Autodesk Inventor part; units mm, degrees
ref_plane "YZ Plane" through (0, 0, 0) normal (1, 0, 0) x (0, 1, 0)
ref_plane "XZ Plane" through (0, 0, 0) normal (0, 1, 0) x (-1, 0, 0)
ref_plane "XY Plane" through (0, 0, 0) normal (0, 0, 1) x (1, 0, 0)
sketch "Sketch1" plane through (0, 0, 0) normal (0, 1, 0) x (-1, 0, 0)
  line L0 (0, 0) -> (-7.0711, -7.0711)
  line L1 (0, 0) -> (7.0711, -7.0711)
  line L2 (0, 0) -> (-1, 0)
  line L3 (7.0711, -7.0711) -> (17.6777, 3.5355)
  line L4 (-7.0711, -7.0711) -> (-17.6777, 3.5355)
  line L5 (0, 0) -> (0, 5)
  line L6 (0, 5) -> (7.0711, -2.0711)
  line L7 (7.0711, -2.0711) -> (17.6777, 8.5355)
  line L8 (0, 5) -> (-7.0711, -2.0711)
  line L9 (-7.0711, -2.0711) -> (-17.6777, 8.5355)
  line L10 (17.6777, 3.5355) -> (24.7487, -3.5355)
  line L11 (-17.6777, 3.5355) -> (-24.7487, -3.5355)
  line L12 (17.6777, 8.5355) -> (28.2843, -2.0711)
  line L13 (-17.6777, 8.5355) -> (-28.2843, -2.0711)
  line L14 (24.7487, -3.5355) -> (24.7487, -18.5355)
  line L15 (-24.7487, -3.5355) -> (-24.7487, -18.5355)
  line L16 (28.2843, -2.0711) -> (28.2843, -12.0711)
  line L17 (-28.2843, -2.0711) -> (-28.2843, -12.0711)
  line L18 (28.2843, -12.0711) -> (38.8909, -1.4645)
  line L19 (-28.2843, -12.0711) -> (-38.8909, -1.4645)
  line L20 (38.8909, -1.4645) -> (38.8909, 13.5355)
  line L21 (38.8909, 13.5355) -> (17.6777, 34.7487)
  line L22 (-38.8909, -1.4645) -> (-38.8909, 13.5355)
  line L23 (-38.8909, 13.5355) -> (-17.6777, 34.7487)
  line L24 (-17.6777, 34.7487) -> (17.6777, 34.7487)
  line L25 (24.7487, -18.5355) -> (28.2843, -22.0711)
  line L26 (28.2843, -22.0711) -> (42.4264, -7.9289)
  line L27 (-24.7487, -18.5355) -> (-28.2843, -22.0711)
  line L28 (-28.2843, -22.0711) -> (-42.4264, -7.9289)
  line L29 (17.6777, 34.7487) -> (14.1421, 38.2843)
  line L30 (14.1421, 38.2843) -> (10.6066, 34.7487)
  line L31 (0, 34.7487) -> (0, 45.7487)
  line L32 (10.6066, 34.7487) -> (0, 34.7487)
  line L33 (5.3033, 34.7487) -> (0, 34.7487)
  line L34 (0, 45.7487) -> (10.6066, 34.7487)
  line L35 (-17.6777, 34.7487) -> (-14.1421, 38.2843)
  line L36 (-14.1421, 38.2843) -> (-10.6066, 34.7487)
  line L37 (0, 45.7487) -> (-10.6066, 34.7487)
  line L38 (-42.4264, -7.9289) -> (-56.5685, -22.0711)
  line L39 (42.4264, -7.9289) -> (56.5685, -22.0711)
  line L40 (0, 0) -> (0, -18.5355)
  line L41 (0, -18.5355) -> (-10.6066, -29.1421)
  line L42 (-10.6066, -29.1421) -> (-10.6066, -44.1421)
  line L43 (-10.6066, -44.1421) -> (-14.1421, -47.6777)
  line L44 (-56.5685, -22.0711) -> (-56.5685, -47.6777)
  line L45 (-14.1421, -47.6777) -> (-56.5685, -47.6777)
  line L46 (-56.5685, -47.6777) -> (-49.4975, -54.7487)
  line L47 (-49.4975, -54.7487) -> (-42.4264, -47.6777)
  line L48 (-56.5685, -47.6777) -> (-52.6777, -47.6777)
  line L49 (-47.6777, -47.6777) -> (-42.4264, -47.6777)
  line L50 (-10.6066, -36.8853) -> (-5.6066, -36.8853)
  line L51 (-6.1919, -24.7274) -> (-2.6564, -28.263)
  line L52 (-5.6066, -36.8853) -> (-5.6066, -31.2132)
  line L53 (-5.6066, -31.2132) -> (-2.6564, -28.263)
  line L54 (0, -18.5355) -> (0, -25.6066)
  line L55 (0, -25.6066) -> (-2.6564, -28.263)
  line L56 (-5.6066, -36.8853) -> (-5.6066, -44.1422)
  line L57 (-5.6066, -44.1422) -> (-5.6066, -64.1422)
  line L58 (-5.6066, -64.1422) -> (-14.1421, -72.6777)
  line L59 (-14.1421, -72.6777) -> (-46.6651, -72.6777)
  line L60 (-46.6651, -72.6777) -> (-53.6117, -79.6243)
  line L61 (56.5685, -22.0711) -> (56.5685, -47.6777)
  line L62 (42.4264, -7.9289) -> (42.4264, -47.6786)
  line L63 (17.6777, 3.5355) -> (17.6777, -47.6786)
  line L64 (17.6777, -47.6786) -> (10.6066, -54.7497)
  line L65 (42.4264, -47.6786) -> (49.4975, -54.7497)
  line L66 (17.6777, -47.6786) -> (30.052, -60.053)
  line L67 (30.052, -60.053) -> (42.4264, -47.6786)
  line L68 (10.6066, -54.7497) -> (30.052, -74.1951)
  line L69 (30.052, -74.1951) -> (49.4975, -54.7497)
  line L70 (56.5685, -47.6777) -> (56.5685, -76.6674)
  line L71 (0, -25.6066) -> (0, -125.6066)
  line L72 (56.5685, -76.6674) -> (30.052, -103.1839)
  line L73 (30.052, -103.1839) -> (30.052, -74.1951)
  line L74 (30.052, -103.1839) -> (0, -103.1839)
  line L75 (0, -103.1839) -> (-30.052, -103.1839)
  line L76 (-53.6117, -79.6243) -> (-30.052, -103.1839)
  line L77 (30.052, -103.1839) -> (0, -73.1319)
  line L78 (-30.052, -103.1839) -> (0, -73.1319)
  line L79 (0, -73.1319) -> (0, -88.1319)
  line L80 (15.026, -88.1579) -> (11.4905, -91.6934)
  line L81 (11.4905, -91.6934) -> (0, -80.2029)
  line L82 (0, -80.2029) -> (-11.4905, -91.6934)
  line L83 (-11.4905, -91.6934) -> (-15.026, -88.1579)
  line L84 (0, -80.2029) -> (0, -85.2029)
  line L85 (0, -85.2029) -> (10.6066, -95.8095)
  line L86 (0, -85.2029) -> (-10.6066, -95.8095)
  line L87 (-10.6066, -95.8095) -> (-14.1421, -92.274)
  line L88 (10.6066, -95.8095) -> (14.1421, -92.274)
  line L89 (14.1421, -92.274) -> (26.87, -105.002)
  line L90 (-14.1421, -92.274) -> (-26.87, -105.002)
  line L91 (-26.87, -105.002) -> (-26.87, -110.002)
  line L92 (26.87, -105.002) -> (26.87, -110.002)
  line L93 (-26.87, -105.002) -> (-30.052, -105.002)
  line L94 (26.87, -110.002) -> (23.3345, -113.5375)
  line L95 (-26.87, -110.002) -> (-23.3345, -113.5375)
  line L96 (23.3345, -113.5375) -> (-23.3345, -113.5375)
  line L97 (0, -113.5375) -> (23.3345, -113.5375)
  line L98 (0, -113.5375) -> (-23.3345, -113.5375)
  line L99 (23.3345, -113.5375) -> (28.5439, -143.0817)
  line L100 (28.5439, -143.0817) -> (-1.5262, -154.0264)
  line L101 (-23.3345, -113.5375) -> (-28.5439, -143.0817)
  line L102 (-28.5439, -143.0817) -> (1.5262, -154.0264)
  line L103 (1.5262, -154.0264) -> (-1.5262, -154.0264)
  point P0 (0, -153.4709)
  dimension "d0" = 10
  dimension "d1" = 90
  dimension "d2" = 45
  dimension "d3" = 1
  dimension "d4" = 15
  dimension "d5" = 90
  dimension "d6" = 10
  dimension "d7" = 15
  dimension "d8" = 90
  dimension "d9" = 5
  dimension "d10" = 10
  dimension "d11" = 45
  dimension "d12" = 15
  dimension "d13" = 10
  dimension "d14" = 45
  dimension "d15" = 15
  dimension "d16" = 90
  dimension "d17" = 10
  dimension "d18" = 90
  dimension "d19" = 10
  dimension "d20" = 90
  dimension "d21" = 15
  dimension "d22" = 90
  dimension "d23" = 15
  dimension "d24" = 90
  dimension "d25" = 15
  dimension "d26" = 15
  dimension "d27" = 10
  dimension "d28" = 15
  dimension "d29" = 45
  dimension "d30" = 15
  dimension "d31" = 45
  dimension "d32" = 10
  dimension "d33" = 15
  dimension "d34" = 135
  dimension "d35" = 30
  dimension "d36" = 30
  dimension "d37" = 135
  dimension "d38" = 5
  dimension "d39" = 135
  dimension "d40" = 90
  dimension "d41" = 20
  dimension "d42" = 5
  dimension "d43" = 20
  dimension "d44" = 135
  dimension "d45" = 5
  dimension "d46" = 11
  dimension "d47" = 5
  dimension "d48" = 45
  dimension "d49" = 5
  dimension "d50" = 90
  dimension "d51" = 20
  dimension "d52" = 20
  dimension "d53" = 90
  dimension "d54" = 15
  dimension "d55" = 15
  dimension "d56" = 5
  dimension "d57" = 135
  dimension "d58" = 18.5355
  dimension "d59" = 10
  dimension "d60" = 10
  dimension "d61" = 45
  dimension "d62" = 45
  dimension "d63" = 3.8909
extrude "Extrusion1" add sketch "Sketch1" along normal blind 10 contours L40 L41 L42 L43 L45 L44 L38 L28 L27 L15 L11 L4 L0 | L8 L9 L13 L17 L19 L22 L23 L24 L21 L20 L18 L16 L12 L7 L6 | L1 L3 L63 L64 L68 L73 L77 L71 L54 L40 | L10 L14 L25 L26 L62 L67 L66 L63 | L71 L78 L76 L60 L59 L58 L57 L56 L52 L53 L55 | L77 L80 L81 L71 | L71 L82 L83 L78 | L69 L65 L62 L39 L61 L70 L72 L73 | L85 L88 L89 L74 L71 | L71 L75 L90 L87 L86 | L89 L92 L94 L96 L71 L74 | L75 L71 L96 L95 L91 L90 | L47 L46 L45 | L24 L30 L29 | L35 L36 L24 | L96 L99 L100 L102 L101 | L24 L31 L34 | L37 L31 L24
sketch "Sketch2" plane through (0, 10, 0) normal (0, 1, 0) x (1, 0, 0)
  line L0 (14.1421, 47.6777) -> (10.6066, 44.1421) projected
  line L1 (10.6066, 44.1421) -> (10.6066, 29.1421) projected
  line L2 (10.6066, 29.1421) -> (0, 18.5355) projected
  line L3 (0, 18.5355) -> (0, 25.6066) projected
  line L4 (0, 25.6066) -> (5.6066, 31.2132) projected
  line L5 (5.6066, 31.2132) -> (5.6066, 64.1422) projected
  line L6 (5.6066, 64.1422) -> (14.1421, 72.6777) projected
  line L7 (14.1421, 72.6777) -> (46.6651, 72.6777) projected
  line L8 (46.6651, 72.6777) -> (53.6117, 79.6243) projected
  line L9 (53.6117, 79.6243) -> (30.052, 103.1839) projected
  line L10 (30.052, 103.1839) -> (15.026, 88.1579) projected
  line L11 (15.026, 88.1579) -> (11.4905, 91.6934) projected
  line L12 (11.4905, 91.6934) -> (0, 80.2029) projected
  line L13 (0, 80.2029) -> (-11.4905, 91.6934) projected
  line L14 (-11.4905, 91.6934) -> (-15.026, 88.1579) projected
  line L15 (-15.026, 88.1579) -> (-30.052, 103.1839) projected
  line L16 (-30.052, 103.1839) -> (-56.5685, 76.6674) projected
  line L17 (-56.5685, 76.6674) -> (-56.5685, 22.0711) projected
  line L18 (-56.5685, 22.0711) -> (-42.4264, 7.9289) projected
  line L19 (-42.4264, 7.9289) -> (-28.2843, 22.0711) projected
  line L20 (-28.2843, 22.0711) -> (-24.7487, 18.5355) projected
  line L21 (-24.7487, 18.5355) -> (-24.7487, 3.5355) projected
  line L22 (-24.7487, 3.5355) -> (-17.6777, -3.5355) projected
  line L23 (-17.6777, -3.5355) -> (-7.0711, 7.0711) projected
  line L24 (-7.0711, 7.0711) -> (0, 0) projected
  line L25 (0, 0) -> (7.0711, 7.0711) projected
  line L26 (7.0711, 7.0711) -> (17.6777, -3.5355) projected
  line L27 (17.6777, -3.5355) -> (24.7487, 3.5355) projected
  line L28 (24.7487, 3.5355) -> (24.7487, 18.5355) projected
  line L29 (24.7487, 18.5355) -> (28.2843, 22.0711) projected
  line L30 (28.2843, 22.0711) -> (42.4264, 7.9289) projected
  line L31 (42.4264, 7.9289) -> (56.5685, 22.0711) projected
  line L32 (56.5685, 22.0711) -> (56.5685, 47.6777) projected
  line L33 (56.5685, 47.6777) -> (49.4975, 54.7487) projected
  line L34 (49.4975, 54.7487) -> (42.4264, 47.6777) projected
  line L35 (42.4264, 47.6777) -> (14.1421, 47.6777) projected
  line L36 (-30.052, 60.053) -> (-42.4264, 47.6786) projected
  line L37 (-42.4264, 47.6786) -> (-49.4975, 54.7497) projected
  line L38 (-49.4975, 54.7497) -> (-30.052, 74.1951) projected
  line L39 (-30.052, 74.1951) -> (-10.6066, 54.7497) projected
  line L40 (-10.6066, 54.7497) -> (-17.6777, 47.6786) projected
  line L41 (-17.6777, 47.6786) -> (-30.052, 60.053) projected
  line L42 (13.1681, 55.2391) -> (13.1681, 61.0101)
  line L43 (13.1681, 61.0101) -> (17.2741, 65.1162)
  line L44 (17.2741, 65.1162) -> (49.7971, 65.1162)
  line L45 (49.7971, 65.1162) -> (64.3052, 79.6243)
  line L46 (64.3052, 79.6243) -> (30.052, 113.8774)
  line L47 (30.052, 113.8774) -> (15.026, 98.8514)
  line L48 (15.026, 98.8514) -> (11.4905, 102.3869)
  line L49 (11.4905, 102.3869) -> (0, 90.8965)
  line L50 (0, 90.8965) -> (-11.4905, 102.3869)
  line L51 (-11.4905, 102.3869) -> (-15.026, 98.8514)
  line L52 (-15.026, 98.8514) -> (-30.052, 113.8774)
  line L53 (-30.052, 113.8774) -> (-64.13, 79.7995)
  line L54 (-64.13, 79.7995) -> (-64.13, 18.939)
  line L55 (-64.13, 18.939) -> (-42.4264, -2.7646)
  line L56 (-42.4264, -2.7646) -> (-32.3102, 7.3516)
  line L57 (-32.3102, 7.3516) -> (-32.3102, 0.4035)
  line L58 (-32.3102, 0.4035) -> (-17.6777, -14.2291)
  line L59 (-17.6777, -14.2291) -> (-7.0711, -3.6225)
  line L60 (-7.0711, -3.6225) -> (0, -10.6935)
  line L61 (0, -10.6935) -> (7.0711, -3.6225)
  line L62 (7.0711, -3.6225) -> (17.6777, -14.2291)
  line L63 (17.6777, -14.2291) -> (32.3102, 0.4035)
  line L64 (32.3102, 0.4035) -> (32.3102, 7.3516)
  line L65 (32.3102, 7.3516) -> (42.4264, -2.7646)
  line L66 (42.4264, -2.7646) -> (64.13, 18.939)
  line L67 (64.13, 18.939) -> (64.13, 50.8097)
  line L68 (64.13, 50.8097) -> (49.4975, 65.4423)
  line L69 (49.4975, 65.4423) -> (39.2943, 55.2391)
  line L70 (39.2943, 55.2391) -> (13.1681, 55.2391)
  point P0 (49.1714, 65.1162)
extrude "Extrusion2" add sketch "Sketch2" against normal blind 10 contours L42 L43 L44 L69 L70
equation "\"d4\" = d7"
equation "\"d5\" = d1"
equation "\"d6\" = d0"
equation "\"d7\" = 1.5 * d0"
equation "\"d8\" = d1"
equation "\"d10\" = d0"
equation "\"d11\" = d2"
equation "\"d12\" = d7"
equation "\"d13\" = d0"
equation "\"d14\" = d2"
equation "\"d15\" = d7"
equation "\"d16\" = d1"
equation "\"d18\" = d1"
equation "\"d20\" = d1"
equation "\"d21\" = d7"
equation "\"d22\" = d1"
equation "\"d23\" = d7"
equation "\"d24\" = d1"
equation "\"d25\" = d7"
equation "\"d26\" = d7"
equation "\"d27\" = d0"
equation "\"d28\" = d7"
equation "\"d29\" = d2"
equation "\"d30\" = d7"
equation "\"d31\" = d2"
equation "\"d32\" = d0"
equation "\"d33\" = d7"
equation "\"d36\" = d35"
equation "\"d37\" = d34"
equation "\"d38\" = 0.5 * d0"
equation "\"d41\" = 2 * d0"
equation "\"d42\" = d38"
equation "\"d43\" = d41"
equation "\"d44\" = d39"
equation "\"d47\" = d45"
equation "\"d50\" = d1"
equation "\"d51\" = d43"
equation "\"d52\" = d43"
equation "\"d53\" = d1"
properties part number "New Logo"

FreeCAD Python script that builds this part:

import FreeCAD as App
import Part
import Sketcher
Q = App.Units.Quantity


def add_polygon(sketch, points):
    """Adds a closed chain of lines whose ends are joined by coincident constraints."""
    first, n = sketch.GeometryCount, len(points)
    for a, b in zip(points, points[1:] + points[:1]):
        sketch.addGeometry(Part.LineSegment(App.Vector(*a, 0), App.Vector(*b, 0)), False)
    for i in range(n):
        sketch.addConstraint(Sketcher.Constraint("Coincident", first + i, 2, first + (i + 1) % n, 1))

doc = App.newDocument("Part")
body = doc.addObject("PartDesign::Body", "Body")
body.AllowCompound = True

# Sketch on XZ plane
sketch1 = body.newObject("Sketcher::SketchObject", "Sketch")
sketch1.AttachmentSupport = (doc.getObject("XZ_Plane"), [""])
sketch1.MapMode = "FlatFace"
add_polygon(sketch1, [(0, -18.5), (0, -25.6), (5.6, -31.2), (5.6, -64.1), (14.1, -72.7), (46.7, -72.7), (53.6, -79.6), (30.1, -103.2), (15, -88.2), (11.5, -91.7), (0, -80.2), (-11.5, -91.7), (-15, -88.2), (-30.1, -103.2), (-56.6, -76.7), (-56.6, -22.1), (-42.4, -7.9), (-28.3, -22.1), (-24.7, -18.5), (-24.7, -3.5), (-17.7, 3.5), (-7.1, -7.1), (0, 0), (7.1, -7.1), (17.7, 3.5), (24.7, -3.5), (24.7, -18.5), (28.3, -22.1), (42.4, -7.9), (56.6, -22.1), (56.6, -47.7), (49.5, -54.7), (42.4, -47.7), (14.1, -47.7), (10.6, -44.1), (10.6, -29.1)])  # lines 0-35
add_polygon(sketch1, [(-10.6, -54.7), (-17.7, -47.7), (-30.1, -60.1), (-42.4, -47.7), (-49.5, -54.7), (-30.1, -74.2)])  # lines 36-41
add_polygon(sketch1, [(7.1, -2.1), (0, 5), (-7.1, -2.1), (-17.7, 8.5), (-28.3, -2.1), (-28.3, -12.1), (-38.9, -1.5), (-38.9, 13.5), (-14.1, 38.3), (-10.6, 34.7), (0, 45.7), (10.6, 34.7), (14.1, 38.3), (38.9, 13.5), (38.9, -1.5), (28.3, -12.1), (28.3, -2.1), (17.7, 8.5)])  # lines 42-59
add_polygon(sketch1, [(-10.6, -95.8), (0, -85.2), (10.6, -95.8), (14.1, -92.3), (26.9, -105), (26.9, -110), (23.3, -113.5), (28.5, -143.1), (0, -153.5), (-28.5, -143.1), (-23.3, -113.5), (-26.9, -110), (-26.9, -105), (-14.1, -92.3)])  # lines 60-73
sketch1.addConstraint(Sketcher.Constraint("Vertical", 0))
sketch1.addConstraint(Sketcher.Constraint("Vertical", 2))
sketch1.addConstraint(Sketcher.Constraint("Horizontal", 4))
sketch1.addConstraint(Sketcher.Constraint("Vertical", 14))
sketch1.addConstraint(Sketcher.Constraint("Vertical", 18))
sketch1.addConstraint(Sketcher.Constraint("Vertical", 25))
sketch1.addConstraint(Sketcher.Constraint("Vertical", 29))
sketch1.addConstraint(Sketcher.Constraint("Horizontal", 32))
sketch1.addConstraint(Sketcher.Constraint("Vertical", 34))
sketch1.addConstraint(Sketcher.Constraint("Vertical", 46))
sketch1.addConstraint(Sketcher.Constraint("Vertical", 48))
sketch1.addConstraint(Sketcher.Constraint("Vertical", 55))
sketch1.addConstraint(Sketcher.Constraint("Vertical", 57))
sketch1.addConstraint(Sketcher.Constraint("Vertical", 64))
sketch1.addConstraint(Sketcher.Constraint("Vertical", 71))
sketch1.addConstraint(Sketcher.Constraint("Coincident", 21, 2, -1, 1))
sketch1.addConstraint(Sketcher.Constraint("Symmetric", 8, 2, 10, 2, -2))
sketch1.addConstraint(Sketcher.Constraint("Symmetric", 7, 2, 11, 2, -2))
sketch1.addConstraint(Sketcher.Constraint("Symmetric", 6, 2, 12, 2, -2))
sketch1.addConstraint(Sketcher.Constraint("Symmetric", 20, 2, 22, 2, -2))
sketch1.addConstraint(Sketcher.Constraint("Symmetric", 19, 2, 23, 2, -2))
sketch1.addConstraint(Sketcher.Constraint("Symmetric", 18, 2, 24, 2, -2))
sketch1.addConstraint(Sketcher.Constraint("Symmetric", 16, 2, 26, 2, -2))
sketch1.addConstraint(Sketcher.Constraint("Symmetric", 15, 2, 27, 2, -2))
sketch1.addConstraint(Sketcher.Constraint("Symmetric", 14, 2, 28, 2, -2))
sketch1.addConstraint(Sketcher.Constraint("Symmetric", 50, 2, 52, 2, -2))
sketch1.addConstraint(Sketcher.Constraint("Symmetric", 49, 2, 53, 2, -2))
sketch1.addConstraint(Sketcher.Constraint("Symmetric", 48, 2, 54, 2, -2))
sketch1.addConstraint(Sketcher.Constraint("Symmetric", 46, 2, 56, 2, -2))
sketch1.addConstraint(Sketcher.Constraint("Symmetric", 44, 2, 58, 2, -2))
sketch1.addConstraint(Sketcher.Constraint("Symmetric", 43, 2, 59, 2, -2))
sketch1.addConstraint(Sketcher.Constraint("Symmetric", 66, 2, 68, 2, -2))
sketch1.addConstraint(Sketcher.Constraint("Symmetric", 65, 2, 69, 2, -2))
sketch1.addConstraint(Sketcher.Constraint("Symmetric", 64, 2, 70, 2, -2))
sketch1.addConstraint(Sketcher.Constraint("Symmetric", 62, 2, 72, 2, -2))
sketch1.addConstraint(Sketcher.Constraint("Symmetric", 61, 2, 73, 2, -2))
sketch1.addConstraint(Sketcher.Constraint("PointOnObject", 0, 2, -2))
sketch1.addConstraint(Sketcher.Constraint("PointOnObject", 9, 2, -2))
sketch1.addConstraint(Sketcher.Constraint("PointOnObject", 42, 2, -2))
sketch1.addConstraint(Sketcher.Constraint("PointOnObject", 51, 2, -2))
sketch1.addConstraint(Sketcher.Constraint("PointOnObject", 60, 2, -2))
sketch1.addConstraint(Sketcher.Constraint("PointOnObject", 67, 2, -2))
sketch1.addConstraint(Sketcher.Constraint("Parallel", 1, 3))
sketch1.addConstraint(Sketcher.Constraint("Parallel", 3, 5))
sketch1.addConstraint(Sketcher.Constraint("Perpendicular", 5, 6))
sketch1.addConstraint(Sketcher.Constraint("Perpendicular", 6, 7))
sketch1.addConstraint(Sketcher.Constraint("Perpendicular", 7, 8))
sketch1.addConstraint(Sketcher.Constraint("Perpendicular", 8, 9))
sketch1.addConstraint(Sketcher.Constraint("Perpendicular", 9, 10))
sketch1.addConstraint(Sketcher.Constraint("Perpendicular", 12, 13))
sketch1.addConstraint(Sketcher.Constraint("Perpendicular", 13, 15))
sketch1.addConstraint(Sketcher.Constraint("Perpendicular", 15, 16))
sketch1.addConstraint(Sketcher.Constraint("Perpendicular", 16, 17))
sketch1.addConstraint(Sketcher.Constraint("Parallel", 17, 19))
sketch1.addConstraint(Sketcher.Constraint("Perpendicular", 19, 20))
sketch1.addConstraint(Sketcher.Constraint("Perpendicular", 20, 21))
sketch1.addConstraint(Sketcher.Constraint("Parallel", 24, 26))
sketch1.addConstraint(Sketcher.Constraint("Perpendicular", 28, 30))
sketch1.addConstraint(Sketcher.Constraint("Perpendicular", 30, 31))
sketch1.addConstraint(Sketcher.Constraint("Parallel", 31, 33))
sketch1.addConstraint(Sketcher.Constraint("Parallel", 33, 35))
sketch1.addConstraint(Sketcher.Constraint("Parallel", 35, 36))
sketch1.addConstraint(Sketcher.Constraint("Perpendicular", 36, 37))
sketch1.addConstraint(Sketcher.Constraint("Perpendicular", 37, 38))
sketch1.addConstraint(Sketcher.Constraint("Perpendicular", 38, 39))
sketch1.addConstraint(Sketcher.Constraint("Perpendicular", 39, 40))
sketch1.addConstraint(Sketcher.Constraint("Perpendicular", 40, 41))
sketch1.addConstraint(Sketcher.Constraint("Perpendicular", 41, 42))
sketch1.addConstraint(Sketcher.Constraint("Perpendicular", 43, 44))
sketch1.addConstraint(Sketcher.Constraint("Perpendicular", 44, 45))
sketch1.addConstraint(Sketcher.Constraint("Perpendicular", 45, 47))
sketch1.addConstraint(Sketcher.Constraint("Perpendicular", 47, 49))
sketch1.addConstraint(Sketcher.Constraint("Perpendicular", 49, 50))
sketch1.addConstraint(Sketcher.Constraint("Perpendicular", 54, 56))
sketch1.addConstraint(Sketcher.Constraint("Perpendicular", 56, 58))
sketch1.addConstraint(Sketcher.Constraint("Parallel", 59, 60))
sketch1.addConstraint(Sketcher.Constraint("Perpendicular", 61, 62))
sketch1.addConstraint(Sketcher.Constraint("Perpendicular", 62, 63))
sketch1.addConstraint(Sketcher.Constraint("Perpendicular", 63, 65))
sketch1.addConstraint(Sketcher.Constraint("Perpendicular", 70, 72))
sketch1.addConstraint(Sketcher.Constraint("Horizontal", 14, 2, 16, 2))
sketch1.addConstraint(Sketcher.Constraint("Horizontal", 29, 2, 31, 2))
sketch1.addConstraint(Sketcher.Constraint("Horizontal", 25, 2, 35, 2))
sketch1.addConstraint(Sketcher.Constraint("Horizontal", 36, 2, 38, 2))
sketch1.addConstraint(Sketcher.Constraint("Horizontal", 39, 2, 41, 2))
sketch1.addConstraint(Sketcher.Constraint("Horizontal", 43, 2, 45, 2))
sketch1.addConstraint(Sketcher.Constraint("Vertical", 27, 2, 31, 2))
sketch1.addConstraint(Sketcher.Constraint("Vertical", 3, 2, 32, 2))
sketch1.addConstraint(Sketcher.Constraint("Vertical", 19, 2, 36, 2))
sketch1.addConstraint(Sketcher.Constraint("Vertical", 12, 2, 37, 2))
sketch1.addConstraint(Sketcher.Constraint("Vertical", 15, 2, 38, 2))
sketch1.addConstraint(Sketcher.Constraint("Vertical", 20, 2, 43, 2))
sketch1.addConstraint(Sketcher.Constraint("Vertical", 36, 2, 44, 2))
sketch1.addConstraint(Sketcher.Constraint("Vertical", 16, 2, 45, 2))
sketch1.addConstraint(Sketcher.Constraint("Vertical", 41, 2, 50, 2))
sketch1.addConstraint(Sketcher.Constraint("Vertical", 34, 2, 52, 2))
sketch1.addConstraint(Sketcher.Constraint("Vertical", 32, 2, 53, 2))
sketch1.addConstraint(Sketcher.Constraint("Vertical", 52, 2, 61, 2))
sketch1.addConstraint(Sketcher.Constraint("Vertical", 53, 2, 62, 2))
sketch1.addConstraint(Sketcher.Constraint("Equal", 25, 34))
sketch1.addConstraint(Sketcher.Constraint("Equal", 34, 48))
sketch1.addConstraint(Sketcher.Constraint("Equal", 11, 17))
sketch1.addConstraint(Sketcher.Constraint("Equal", 19, 21))
sketch1.addConstraint(Sketcher.Constraint("Equal", 24, 30))
sketch1.addConstraint(Sketcher.Constraint("Equal", 26, 33))
sketch1.addConstraint(Sketcher.Constraint("Equal", 23, 35))
sketch1.addConstraint(Sketcher.Constraint("Equal", 45, 47))
sketch1.addConstraint(Sketcher.Constraint("Equal", 62, 65))
sketch1.addConstraint(Sketcher.Constraint("DistanceY", 18, 1, 18, 2, 15.0))
sketch1.addConstraint(Sketcher.Constraint("DistanceY", 46, 2, 46, 1, 10.0))
sketch1.addConstraint(Sketcher.Constraint("DistanceY", 64, 2, 64, 1, 5.0))
sketch1.addConstraint(Sketcher.Constraint("Distance", 8, 5.0))
sketch1.addConstraint(Sketcher.Constraint("Distance", 15, 20.0))
sketch1.addConstraint(Sketcher.Constraint("Distance", 66, 30.0))
sketch1.addConstraint(Sketcher.Constraint("DistanceY", -1, 1, 42, 2, 5.0))
sketch1.addConstraint(Sketcher.Constraint("Angle", 66, Q("-80 deg")))
sketch1.addConstraint(Sketcher.Constraint("Angle", 67, Q("-159.9999 deg")))
sketch1.addConstraint(Sketcher.Constraint("Distance", 63, 18.0))
sketch1.addConstraint(Sketcher.Constraint("Distance", 7, 21.25))
sketch1.addConstraint(Sketcher.Constraint("DistanceX", 4, 1, 4, 2, 32.523))
sketch1.addConstraint(Sketcher.Constraint("DistanceY", 0, 2, 0, 1, 7.071))
sketch1.addConstraint(Sketcher.Constraint("DistanceY", 2, 2, 2, 1, 32.929))
sketch1.addConstraint(Sketcher.Constraint("Distance", 1, 7.929))
sketch1.addConstraint(Sketcher.Constraint("Distance", 5, 9.824))
sketch1.addConstraint(Sketcher.Constraint("DistanceY", 37, 2, -1, 1, 60.053))
sketch1.addConstraint(Sketcher.Constraint("DistanceY", 60, 2, -1, 1, 85.203))
sketch1.addConstraint(Sketcher.Constraint("Distance", 51, 15.2807))
pad1 = body.newObject("PartDesign::Pad", "Pad")
pad1.Profile = sketch1
pad1.Length = 10
pad1.Reversed = True

# Sketch on XZ plane
sketch2 = body.newObject("Sketcher::SketchObject", "Sketch001")
sketch2.AttachmentSupport = (doc.getObject("XZ_Plane"), [""])
sketch2.MapMode = "FlatFace"
sketch2.AttachmentOffset = App.Placement(App.Vector(0, 0, -10), App.Rotation())
add_polygon(sketch2, [(13, -61), (13, -55), (39, -55), (49, -65), (17, -65)])  # lines 0-4
sketch2.addConstraint(Sketcher.Constraint("Vertical", 0))
sketch2.addConstraint(Sketcher.Constraint("Horizontal", 1))
sketch2.addConstraint(Sketcher.Constraint("Horizontal", 3))
sketch2.addConstraint(Sketcher.Constraint("Parallel", 2, 4))
sketch2.addConstraint(Sketcher.Constraint("Angle", 2, Q("-45 deg")))
sketch2.addConstraint(Sketcher.Constraint("DistanceY", 0, 1, 0, 2, 5.771))
sketch2.addConstraint(Sketcher.Constraint("DistanceY", 4, 2, -1, 1, 61.01))
sketch2.addConstraint(Sketcher.Constraint("DistanceX", 1, 1, 1, 2, 26.1262))
sketch2.addConstraint(Sketcher.Constraint("DistanceX", -1, 1, 0, 2, 13.168))
sketch2.addConstraint(Sketcher.Constraint("DistanceX", -1, 1, 3, 2, 17.274))
pad2 = body.newObject("PartDesign::Pad", "Pad001")
pad2.Profile = sketch2
pad2.Length = 10

doc.recompute()
